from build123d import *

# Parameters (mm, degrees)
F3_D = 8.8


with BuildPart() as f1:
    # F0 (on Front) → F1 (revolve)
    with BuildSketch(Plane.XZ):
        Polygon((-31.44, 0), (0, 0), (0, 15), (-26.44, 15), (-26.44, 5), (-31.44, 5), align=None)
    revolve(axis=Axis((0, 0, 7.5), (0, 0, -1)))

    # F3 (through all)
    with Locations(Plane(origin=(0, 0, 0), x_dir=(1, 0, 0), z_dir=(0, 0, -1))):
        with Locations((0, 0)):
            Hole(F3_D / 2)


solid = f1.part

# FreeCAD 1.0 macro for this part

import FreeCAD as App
import Part
import Sketcher
Q = App.Units.Quantity


def add_polygon(sketch, points):
    """Adds a closed chain of lines whose ends are joined by coincident constraints."""
    first, n = sketch.GeometryCount, len(points)
    for a, b in zip(points, points[1:] + points[:1]):
        sketch.addGeometry(Part.LineSegment(App.Vector(*a, 0), App.Vector(*b, 0)), False)
    for i in range(n):
        sketch.addConstraint(Sketcher.Constraint("Coincident", first + i, 2, first + (i + 1) % n, 1))

doc = App.newDocument("Part")
body = doc.addObject("PartDesign::Body", "Body")

sketch1 = body.newObject("Sketcher::SketchObject", "Sketch")
sketch1.AttachmentSupport = (doc.getObject("XZ_Plane"), [""])
sketch1.MapMode = "FlatFace"
add_polygon(sketch1, [(-31, 0), (0, 0), (0, 15), (-26, 15), (-26, 5), (-31, 5)])
sketch1.addConstraint([
    Sketcher.Constraint("Horizontal", 0),
    Sketcher.Constraint("Vertical", 1),
    Sketcher.Constraint("Horizontal", 2),
    Sketcher.Constraint("Vertical", 3),
    Sketcher.Constraint("Horizontal", 4),
    Sketcher.Constraint("Vertical", 5),
    Sketcher.Constraint("Coincident", 0, 2, -1, 1),
    Sketcher.Constraint("Equal", 4, 5),
    Sketcher.Constraint("DistanceX", 4, 2, 4, 1, Q("5 mm")),
    Sketcher.Constraint("DistanceY", 1, 1, 1, 2, Q("15 mm")),
    Sketcher.Constraint("DistanceX", 0, 1, 0, 2, Q("31.44 mm")),
])
revolution = body.newObject("PartDesign::Revolution", "Revolution")
revolution.Profile = sketch1
revolution.ReferenceAxis = (sketch1, ["V_Axis"])
revolution.Angle = 360

sketch2 = body.newObject("Sketcher::SketchObject", "Sketch001")
sketch2.AttachmentSupport = (doc.getObject("XY_Plane"), [""])
sketch2.MapMode = "FlatFace"
sketch2.addGeometry(Part.Circle(App.Vector(0, 0, 0), App.Vector(0, 0, 1), 4.4), False)
sketch2.addConstraint([
    Sketcher.Constraint("Coincident", 0, 3, -1, 1),
    Sketcher.Constraint("Diameter", 0, Q("8.8 mm")),
])
doc.recompute()
hole = body.newObject("PartDesign::Hole", "Hole")
hole.Profile = sketch2
hole.ThreadType = "None"
hole.Diameter = 8.8
hole.DepthType = "ThroughAll"
hole.Reversed = True

doc.recompute()
